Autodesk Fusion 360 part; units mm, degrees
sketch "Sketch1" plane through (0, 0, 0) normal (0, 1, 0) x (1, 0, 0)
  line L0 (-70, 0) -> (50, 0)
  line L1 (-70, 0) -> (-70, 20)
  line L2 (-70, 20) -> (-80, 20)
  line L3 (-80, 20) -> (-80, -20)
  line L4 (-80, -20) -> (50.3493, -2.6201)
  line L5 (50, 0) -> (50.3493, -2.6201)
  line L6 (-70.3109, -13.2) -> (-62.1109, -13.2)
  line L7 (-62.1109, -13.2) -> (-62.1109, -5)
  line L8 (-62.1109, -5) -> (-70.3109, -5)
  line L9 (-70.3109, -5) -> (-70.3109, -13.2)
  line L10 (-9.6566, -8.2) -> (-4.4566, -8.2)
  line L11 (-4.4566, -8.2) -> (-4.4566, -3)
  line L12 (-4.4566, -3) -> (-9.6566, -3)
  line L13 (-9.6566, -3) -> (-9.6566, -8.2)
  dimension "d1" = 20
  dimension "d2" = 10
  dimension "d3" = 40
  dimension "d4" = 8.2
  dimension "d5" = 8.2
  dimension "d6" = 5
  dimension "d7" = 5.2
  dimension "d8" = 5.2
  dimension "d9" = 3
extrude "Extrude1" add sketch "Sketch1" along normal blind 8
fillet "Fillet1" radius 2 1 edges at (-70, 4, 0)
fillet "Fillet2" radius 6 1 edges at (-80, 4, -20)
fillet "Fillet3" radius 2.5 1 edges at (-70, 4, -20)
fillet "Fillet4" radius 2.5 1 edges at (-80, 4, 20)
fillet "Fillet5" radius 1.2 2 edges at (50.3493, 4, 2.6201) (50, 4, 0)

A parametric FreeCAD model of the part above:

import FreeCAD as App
import Part
import Sketcher
from FreeCAD import Vector
Q = App.Units.Quantity


def edges_at(feature, points):
    """Names of the edges that pass closest to the given points."""
    edges = feature.Shape.Edges
    near = lambda p: min(range(len(edges)), key=lambda i: edges[i].distToShape(Part.Vertex(*p))[0])
    return sorted({f"Edge{near(p) + 1}" for p in points})

doc = App.newDocument("Part")
params = doc.addObject("Spreadsheet::Sheet", "Params")
for row, (alias, value) in enumerate([
    ("sketch1_width", "10 mm"),
    ("sketch1_height", "20 mm"),
    ("sketch1_height2", "40 mm"),
    ("sketch1_width2", "8.2 mm"),
    ("sketch1_width3", "5.2 mm"),
    ("pad1_length", "8 mm"),
    ("fillet_radius", "2 mm"),
    ("fillet2_radius", "6 mm"),
    ("fillet3_radius", "2.5 mm"),
    ("fillet4_radius", "2.5 mm"),
    ("fillet5_radius", "1.2 mm"),
], start=1):
    params.set(f"A{row}", alias)
    params.set(f"B{row}", "=" + value)
    params.setAlias(f"B{row}", alias)

body = doc.addObject("PartDesign::Body", "Body")

sketch1 = doc.addObject("Sketcher::SketchObject", "Sketch")
body.addObject(sketch1)
sketch1.AttachmentSupport = (doc.XZ_Plane, [""])
sketch1.MapMode = "FlatFace"
sketch1.addGeometry(Part.LineSegment(Vector(50, 0, 0), Vector(-70, 0, 0)), False)
sketch1.addGeometry(Part.LineSegment(Vector(-70, 0, 0), Vector(-70, -20, 0)), False)
sketch1.addGeometry(Part.LineSegment(Vector(-70, -20, 0), Vector(-80, -20, 0)), False)
sketch1.addGeometry(Part.LineSegment(Vector(-80, -20, 0), Vector(-80, 20, 0)), False)
sketch1.addGeometry(Part.LineSegment(Vector(-80, 20, 0), Vector(50.3493, 2.6201, 0)), False)
sketch1.addGeometry(Part.LineSegment(Vector(50.3493, 2.6201, 0), Vector(50, 0, 0)), False)
sketch1.addGeometry(Part.LineSegment(Vector(-62.1109, 13.2, 0), Vector(-70.3109, 13.2, 0)), False)
sketch1.addGeometry(Part.LineSegment(Vector(-70.3109, 13.2, 0), Vector(-70.3109, 5, 0)), False)
sketch1.addGeometry(Part.LineSegment(Vector(-70.3109, 5, 0), Vector(-62.1109, 5, 0)), False)
sketch1.addGeometry(Part.LineSegment(Vector(-62.1109, 5, 0), Vector(-62.1109, 13.2, 0)), False)
sketch1.addGeometry(Part.LineSegment(Vector(-4.4566, 8.2, 0), Vector(-9.6566, 8.2, 0)), False)
sketch1.addGeometry(Part.LineSegment(Vector(-9.6566, 8.2, 0), Vector(-9.6566, 3, 0)), False)
sketch1.addGeometry(Part.LineSegment(Vector(-9.6566, 3, 0), Vector(-4.4566, 3, 0)), False)
sketch1.addGeometry(Part.LineSegment(Vector(-4.4566, 3, 0), Vector(-4.4566, 8.2, 0)), False)
sketch1.addConstraint(Sketcher.Constraint("Coincident", 0, 2, 1, 1))
sketch1.addConstraint(Sketcher.Constraint("Coincident", 1, 2, 2, 1))
sketch1.addConstraint(Sketcher.Constraint("Coincident", 2, 2, 3, 1))
sketch1.addConstraint(Sketcher.Constraint("Coincident", 3, 2, 4, 1))
sketch1.addConstraint(Sketcher.Constraint("Coincident", 4, 2, 5, 1))
sketch1.addConstraint(Sketcher.Constraint("Coincident", 5, 2, 0, 1))
sketch1.addConstraint(Sketcher.Constraint("Coincident", 6, 2, 7, 1))
sketch1.addConstraint(Sketcher.Constraint("Coincident", 7, 2, 8, 1))
sketch1.addConstraint(Sketcher.Constraint("Coincident", 8, 2, 9, 1))
sketch1.addConstraint(Sketcher.Constraint("Coincident", 9, 2, 6, 1))
sketch1.addConstraint(Sketcher.Constraint("Coincident", 10, 2, 11, 1))
sketch1.addConstraint(Sketcher.Constraint("Coincident", 11, 2, 12, 1))
sketch1.addConstraint(Sketcher.Constraint("Coincident", 12, 2, 13, 1))
sketch1.addConstraint(Sketcher.Constraint("Coincident", 13, 2, 10, 1))
sketch1.addConstraint(Sketcher.Constraint("Horizontal", 0))
sketch1.addConstraint(Sketcher.Constraint("Vertical", 1))
sketch1.addConstraint(Sketcher.Constraint("Horizontal", 2))
sketch1.addConstraint(Sketcher.Constraint("Vertical", 3))
sketch1.addConstraint(Sketcher.Constraint("Horizontal", 6))
sketch1.addConstraint(Sketcher.Constraint("Vertical", 7))
sketch1.addConstraint(Sketcher.Constraint("Horizontal", 8))
sketch1.addConstraint(Sketcher.Constraint("Vertical", 9))
sketch1.addConstraint(Sketcher.Constraint("Horizontal", 10))
sketch1.addConstraint(Sketcher.Constraint("Vertical", 11))
sketch1.addConstraint(Sketcher.Constraint("Horizontal", 12))
sketch1.addConstraint(Sketcher.Constraint("Vertical", 13))
sketch1.addConstraint(Sketcher.Constraint("PointOnObject", 0, 2, -1))
sketch1.addConstraint(Sketcher.Constraint("Perpendicular", 4, 5))
sketch1.addConstraint(Sketcher.Constraint("Equal", 8, 7))
sketch1.addConstraint(Sketcher.Constraint("Equal", 12, 11))
sketch1.addConstraint(Sketcher.Constraint("DistanceX", 2, 2, 2, 1, Q("10 mm")))
sketch1.addConstraint(Sketcher.Constraint("DistanceY", 1, 2, 1, 1, Q("20 mm")))
sketch1.addConstraint(Sketcher.Constraint("DistanceY", 3, 1, 3, 2, Q("40 mm")))
sketch1.addConstraint(Sketcher.Constraint("DistanceX", 6, 2, 6, 1, Q("8.2 mm")))
sketch1.addConstraint(Sketcher.Constraint("DistanceX", 10, 2, 10, 1, Q("5.2 mm")))
sketch1.addConstraint(Sketcher.Constraint("DistanceY", -1, 1, 7, 2, Q("5 mm")))
sketch1.addConstraint(Sketcher.Constraint("DistanceY", -1, 1, 11, 2, Q("3 mm")))
sketch1.addConstraint(Sketcher.Constraint("DistanceX", 0, 2, 0, 1, Q("120 mm")))
sketch1.addConstraint(Sketcher.Constraint("DistanceX", 0, 2, -1, 1, Q("70 mm")))
sketch1.addConstraint(Sketcher.Constraint("DistanceY", -1, 1, 4, 2, Q("2.62 mm")))
sketch1.addConstraint(Sketcher.Constraint("DistanceX", 6, 2, -1, 1, Q("70.311 mm")))
sketch1.addConstraint(Sketcher.Constraint("DistanceX", 10, 2, 4, 2, Q("60.006 mm")))
sketch1.setExpression("Constraints[30]", "Params.sketch1_width")
sketch1.setExpression("Constraints[31]", "Params.sketch1_height")
sketch1.setExpression("Constraints[32]", "Params.sketch1_height2")
sketch1.setExpression("Constraints[33]", "Params.sketch1_width2")
sketch1.setExpression("Constraints[34]", "Params.sketch1_width3")
pad1 = doc.addObject("PartDesign::Pad", "Pad")
body.addObject(pad1)
pad1.Profile = sketch1
pad1.setExpression("Length", "Params.pad1_length")
pad1.Reversed = True
doc.recompute()

fillet = doc.addObject("PartDesign::Fillet", "Fillet")
body.addObject(fillet)
fillet.Base = (pad1, edges_at(pad1, [(-70, 4, 0)]))
fillet.setExpression("Radius", "Params.fillet_radius")
doc.recompute()

fillet2 = doc.addObject("PartDesign::Fillet", "Fillet001")
body.addObject(fillet2)
fillet2.Base = (fillet, edges_at(fillet, [(-80, 4, -20)]))
fillet2.setExpression("Radius", "Params.fillet2_radius")
doc.recompute()

fillet3 = doc.addObject("PartDesign::Fillet", "Fillet002")
body.addObject(fillet3)
fillet3.Base = (fillet2, edges_at(fillet2, [(-70, 4, -20)]))
fillet3.setExpression("Radius", "Params.fillet3_radius")
doc.recompute()

fillet4 = doc.addObject("PartDesign::Fillet", "Fillet003")
body.addObject(fillet4)
fillet4.Base = (fillet3, edges_at(fillet3, [(-80, 4, 20)]))
fillet4.setExpression("Radius", "Params.fillet4_radius")
doc.recompute()

fillet5 = doc.addObject("PartDesign::Fillet", "Fillet004")
body.addObject(fillet5)
fillet5.Base = (fillet4, edges_at(fillet4, [(50.349, 4, 2.62), (50, 4, 0)]))
fillet5.setExpression("Radius", "Params.fillet5_radius")

doc.recompute()
